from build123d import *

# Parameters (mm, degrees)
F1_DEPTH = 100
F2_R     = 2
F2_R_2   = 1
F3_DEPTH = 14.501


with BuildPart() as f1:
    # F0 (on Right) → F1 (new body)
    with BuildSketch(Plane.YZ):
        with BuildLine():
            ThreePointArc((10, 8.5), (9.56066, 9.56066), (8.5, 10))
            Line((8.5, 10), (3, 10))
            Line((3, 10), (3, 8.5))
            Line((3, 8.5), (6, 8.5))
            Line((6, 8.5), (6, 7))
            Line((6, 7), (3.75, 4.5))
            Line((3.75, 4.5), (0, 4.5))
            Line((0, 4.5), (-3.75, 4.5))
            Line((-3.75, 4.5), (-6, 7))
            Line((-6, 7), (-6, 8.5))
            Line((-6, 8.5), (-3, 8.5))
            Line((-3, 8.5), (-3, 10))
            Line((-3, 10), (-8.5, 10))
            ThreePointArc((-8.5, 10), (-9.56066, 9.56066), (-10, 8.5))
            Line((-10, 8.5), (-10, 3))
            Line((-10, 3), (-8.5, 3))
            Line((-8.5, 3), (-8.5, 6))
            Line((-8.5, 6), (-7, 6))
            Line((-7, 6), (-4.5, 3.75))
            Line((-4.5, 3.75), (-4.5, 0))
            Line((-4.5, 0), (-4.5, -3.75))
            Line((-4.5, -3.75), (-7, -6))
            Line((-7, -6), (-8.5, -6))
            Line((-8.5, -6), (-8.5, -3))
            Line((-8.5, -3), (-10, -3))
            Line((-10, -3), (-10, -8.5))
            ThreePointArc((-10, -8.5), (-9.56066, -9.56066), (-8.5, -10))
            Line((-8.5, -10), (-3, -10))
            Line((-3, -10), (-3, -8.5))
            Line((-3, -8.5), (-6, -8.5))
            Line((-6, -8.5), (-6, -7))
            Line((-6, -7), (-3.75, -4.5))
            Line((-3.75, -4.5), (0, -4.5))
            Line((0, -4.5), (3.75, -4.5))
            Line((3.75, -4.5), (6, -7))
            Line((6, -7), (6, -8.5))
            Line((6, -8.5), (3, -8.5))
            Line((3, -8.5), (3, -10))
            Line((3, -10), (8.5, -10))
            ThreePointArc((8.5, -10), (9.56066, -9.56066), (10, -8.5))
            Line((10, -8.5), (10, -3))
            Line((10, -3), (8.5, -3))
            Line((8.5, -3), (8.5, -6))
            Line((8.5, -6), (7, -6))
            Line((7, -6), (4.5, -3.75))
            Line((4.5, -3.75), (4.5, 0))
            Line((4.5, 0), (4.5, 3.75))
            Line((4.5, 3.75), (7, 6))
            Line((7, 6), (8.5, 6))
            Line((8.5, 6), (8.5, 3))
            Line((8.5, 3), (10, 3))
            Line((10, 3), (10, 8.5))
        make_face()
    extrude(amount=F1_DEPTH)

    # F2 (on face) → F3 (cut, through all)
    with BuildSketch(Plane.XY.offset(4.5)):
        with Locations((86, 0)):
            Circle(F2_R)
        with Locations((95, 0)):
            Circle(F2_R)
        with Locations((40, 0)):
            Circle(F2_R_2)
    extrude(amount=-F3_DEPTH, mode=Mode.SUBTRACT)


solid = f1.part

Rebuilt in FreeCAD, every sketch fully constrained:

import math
import FreeCAD as App
import Part
import Sketcher
Q = App.Units.Quantity

doc = App.newDocument("Part")
body = doc.addObject("PartDesign::Body", "Body")

sketch1 = body.newObject("Sketcher::SketchObject", "Sketch")
sketch1.AttachmentSupport = (doc.getObject("YZ_Plane"), [""])
sketch1.MapMode = "FlatFace"
sketch1.addGeometry(Part.ArcOfCircle(Part.Circle(App.Vector(8.5, 8.5, 0), App.Vector(0, 0, 1), 1.5), math.radians(0), math.radians(90)), False)
sketch1.addGeometry(Part.LineSegment(App.Vector(8.5, 10, 0), App.Vector(3, 10, 0)), False)
sketch1.addGeometry(Part.LineSegment(App.Vector(3, 10, 0), App.Vector(3, 8.5, 0)), False)
sketch1.addGeometry(Part.LineSegment(App.Vector(3, 8.5, 0), App.Vector(6, 8.5, 0)), False)
sketch1.addGeometry(Part.LineSegment(App.Vector(6, 8.5, 0), App.Vector(6, 7, 0)), False)
sketch1.addGeometry(Part.LineSegment(App.Vector(6, 7, 0), App.Vector(3.8, 4.5, 0)), False)
sketch1.addGeometry(Part.LineSegment(App.Vector(3.8, 4.5, 0), App.Vector(-3.8, 4.5, 0)), False)
sketch1.addGeometry(Part.LineSegment(App.Vector(-3.8, 4.5, 0), App.Vector(-6, 7, 0)), False)
sketch1.addGeometry(Part.LineSegment(App.Vector(-6, 7, 0), App.Vector(-6, 8.5, 0)), False)
sketch1.addGeometry(Part.LineSegment(App.Vector(-6, 8.5, 0), App.Vector(-3, 8.5, 0)), False)
sketch1.addGeometry(Part.LineSegment(App.Vector(-3, 8.5, 0), App.Vector(-3, 10, 0)), False)
sketch1.addGeometry(Part.LineSegment(App.Vector(-3, 10, 0), App.Vector(-8.5, 10, 0)), False)
sketch1.addGeometry(Part.ArcOfCircle(Part.Circle(App.Vector(-8.5, 8.5, 0), App.Vector(0, 0, 1), 1.5), math.radians(90), math.radians(180)), False)
sketch1.addGeometry(Part.LineSegment(App.Vector(-10, 8.5, 0), App.Vector(-10, 3, 0)), False)
sketch1.addGeometry(Part.LineSegment(App.Vector(-10, 3, 0), App.Vector(-8.5, 3, 0)), False)
sketch1.addGeometry(Part.LineSegment(App.Vector(-8.5, 3, 0), App.Vector(-8.5, 6, 0)), False)
sketch1.addGeometry(Part.LineSegment(App.Vector(-8.5, 6, 0), App.Vector(-7, 6, 0)), False)
sketch1.addGeometry(Part.LineSegment(App.Vector(-7, 6, 0), App.Vector(-4.5, 3.8, 0)), False)
sketch1.addGeometry(Part.LineSegment(App.Vector(-4.5, 3.8, 0), App.Vector(-4.5, -3.8, 0)), False)
sketch1.addGeometry(Part.LineSegment(App.Vector(-4.5, -3.8, 0), App.Vector(-7, -6, 0)), False)
sketch1.addGeometry(Part.LineSegment(App.Vector(-7, -6, 0), App.Vector(-8.5, -6, 0)), False)
sketch1.addGeometry(Part.LineSegment(App.Vector(-8.5, -6, 0), App.Vector(-8.5, -3, 0)), False)
sketch1.addGeometry(Part.LineSegment(App.Vector(-8.5, -3, 0), App.Vector(-10, -3, 0)), False)
sketch1.addGeometry(Part.LineSegment(App.Vector(-10, -3, 0), App.Vector(-10, -8.5, 0)), False)
sketch1.addGeometry(Part.ArcOfCircle(Part.Circle(App.Vector(-8.5, -8.5, 0), App.Vector(0, 0, 1), 1.5), math.radians(-180), math.radians(-90)), False)
sketch1.addGeometry(Part.LineSegment(App.Vector(-8.5, -10, 0), App.Vector(-3, -10, 0)), False)
sketch1.addGeometry(Part.LineSegment(App.Vector(-3, -10, 0), App.Vector(-3, -8.5, 0)), False)
sketch1.addGeometry(Part.LineSegment(App.Vector(-3, -8.5, 0), App.Vector(-6, -8.5, 0)), False)
sketch1.addGeometry(Part.LineSegment(App.Vector(-6, -8.5, 0), App.Vector(-6, -7, 0)), False)
sketch1.addGeometry(Part.LineSegment(App.Vector(-6, -7, 0), App.Vector(-3.8, -4.5, 0)), False)
sketch1.addGeometry(Part.LineSegment(App.Vector(-3.8, -4.5, 0), App.Vector(3.8, -4.5, 0)), False)
sketch1.addGeometry(Part.LineSegment(App.Vector(3.8, -4.5, 0), App.Vector(6, -7, 0)), False)
sketch1.addGeometry(Part.LineSegment(App.Vector(6, -7, 0), App.Vector(6, -8.5, 0)), False)
sketch1.addGeometry(Part.LineSegment(App.Vector(6, -8.5, 0), App.Vector(3, -8.5, 0)), False)
sketch1.addGeometry(Part.LineSegment(App.Vector(3, -8.5, 0), App.Vector(3, -10, 0)), False)
sketch1.addGeometry(Part.LineSegment(App.Vector(3, -10, 0), App.Vector(8.5, -10, 0)), False)
sketch1.addGeometry(Part.ArcOfCircle(Part.Circle(App.Vector(8.5, -8.5, 0), App.Vector(0, 0, 1), 1.5), math.radians(-90), math.radians(0)), False)
sketch1.addGeometry(Part.LineSegment(App.Vector(10, -8.5, 0), App.Vector(10, -3, 0)), False)
sketch1.addGeometry(Part.LineSegment(App.Vector(10, -3, 0), App.Vector(8.5, -3, 0)), False)
sketch1.addGeometry(Part.LineSegment(App.Vector(8.5, -3, 0), App.Vector(8.5, -6, 0)), False)
sketch1.addGeometry(Part.LineSegment(App.Vector(8.5, -6, 0), App.Vector(7, -6, 0)), False)
sketch1.addGeometry(Part.LineSegment(App.Vector(7, -6, 0), App.Vector(4.5, -3.8, 0)), False)
sketch1.addGeometry(Part.LineSegment(App.Vector(4.5, -3.8, 0), App.Vector(4.5, 3.8, 0)), False)
sketch1.addGeometry(Part.LineSegment(App.Vector(4.5, 3.8, 0), App.Vector(7, 6, 0)), False)
sketch1.addGeometry(Part.LineSegment(App.Vector(7, 6, 0), App.Vector(8.5, 6, 0)), False)
sketch1.addGeometry(Part.LineSegment(App.Vector(8.5, 6, 0), App.Vector(8.5, 3, 0)), False)
sketch1.addGeometry(Part.LineSegment(App.Vector(8.5, 3, 0), App.Vector(10, 3, 0)), False)
sketch1.addGeometry(Part.LineSegment(App.Vector(10, 3, 0), App.Vector(10, 8.5, 0)), False)
sketch1.addConstraint(Sketcher.Constraint("Tangent", 0, 2, 1, 1))
sketch1.addConstraint(Sketcher.Constraint("Coincident", 1, 2, 2, 1))
sketch1.addConstraint(Sketcher.Constraint("Coincident", 2, 2, 3, 1))
sketch1.addConstraint(Sketcher.Constraint("Coincident", 3, 2, 4, 1))
sketch1.addConstraint(Sketcher.Constraint("Coincident", 4, 2, 5, 1))
sketch1.addConstraint(Sketcher.Constraint("Coincident", 5, 2, 6, 1))
sketch1.addConstraint(Sketcher.Constraint("Coincident", 6, 2, 7, 1))
sketch1.addConstraint(Sketcher.Constraint("Coincident", 7, 2, 8, 1))
sketch1.addConstraint(Sketcher.Constraint("Coincident", 8, 2, 9, 1))
sketch1.addConstraint(Sketcher.Constraint("Coincident", 9, 2, 10, 1))
sketch1.addConstraint(Sketcher.Constraint("Coincident", 10, 2, 11, 1))
sketch1.addConstraint(Sketcher.Constraint("Tangent", 11, 2, 12, 1))
sketch1.addConstraint(Sketcher.Constraint("Tangent", 12, 2, 13, 1))
sketch1.addConstraint(Sketcher.Constraint("Coincident", 13, 2, 14, 1))
sketch1.addConstraint(Sketcher.Constraint("Coincident", 14, 2, 15, 1))
sketch1.addConstraint(Sketcher.Constraint("Coincident", 15, 2, 16, 1))
sketch1.addConstraint(Sketcher.Constraint("Coincident", 16, 2, 17, 1))
sketch1.addConstraint(Sketcher.Constraint("Coincident", 17, 2, 18, 1))
sketch1.addConstraint(Sketcher.Constraint("Coincident", 18, 2, 19, 1))
sketch1.addConstraint(Sketcher.Constraint("Coincident", 19, 2, 20, 1))
sketch1.addConstraint(Sketcher.Constraint("Coincident", 20, 2, 21, 1))
sketch1.addConstraint(Sketcher.Constraint("Coincident", 21, 2, 22, 1))
sketch1.addConstraint(Sketcher.Constraint("Coincident", 22, 2, 23, 1))
sketch1.addConstraint(Sketcher.Constraint("Tangent", 23, 2, 24, 1))
sketch1.addConstraint(Sketcher.Constraint("Tangent", 24, 2, 25, 1))
sketch1.addConstraint(Sketcher.Constraint("Coincident", 25, 2, 26, 1))
sketch1.addConstraint(Sketcher.Constraint("Coincident", 26, 2, 27, 1))
sketch1.addConstraint(Sketcher.Constraint("Coincident", 27, 2, 28, 1))
sketch1.addConstraint(Sketcher.Constraint("Coincident", 28, 2, 29, 1))
sketch1.addConstraint(Sketcher.Constraint("Coincident", 29, 2, 30, 1))
sketch1.addConstraint(Sketcher.Constraint("Coincident", 30, 2, 31, 1))
sketch1.addConstraint(Sketcher.Constraint("Coincident", 31, 2, 32, 1))
sketch1.addConstraint(Sketcher.Constraint("Coincident", 32, 2, 33, 1))
sketch1.addConstraint(Sketcher.Constraint("Coincident", 33, 2, 34, 1))
sketch1.addConstraint(Sketcher.Constraint("Coincident", 34, 2, 35, 1))
sketch1.addConstraint(Sketcher.Constraint("Tangent", 35, 2, 36, 1))
sketch1.addConstraint(Sketcher.Constraint("Tangent", 36, 2, 37, 1))
sketch1.addConstraint(Sketcher.Constraint("Coincident", 37, 2, 38, 1))
sketch1.addConstraint(Sketcher.Constraint("Coincident", 38, 2, 39, 1))
sketch1.addConstraint(Sketcher.Constraint("Coincident", 39, 2, 40, 1))
sketch1.addConstraint(Sketcher.Constraint("Coincident", 40, 2, 41, 1))
sketch1.addConstraint(Sketcher.Constraint("Coincident", 41, 2, 42, 1))
sketch1.addConstraint(Sketcher.Constraint("Coincident", 42, 2, 43, 1))
sketch1.addConstraint(Sketcher.Constraint("Coincident", 43, 2, 44, 1))
sketch1.addConstraint(Sketcher.Constraint("Coincident", 44, 2, 45, 1))
sketch1.addConstraint(Sketcher.Constraint("Coincident", 45, 2, 46, 1))
sketch1.addConstraint(Sketcher.Constraint("Coincident", 46, 2, 47, 1))
sketch1.addConstraint(Sketcher.Constraint("Tangent", 47, 2, 0, 1))
sketch1.addConstraint(Sketcher.Constraint("Horizontal", 1))
sketch1.addConstraint(Sketcher.Constraint("Vertical", 2))
sketch1.addConstraint(Sketcher.Constraint("Horizontal", 3))
sketch1.addConstraint(Sketcher.Constraint("Vertical", 4))
sketch1.addConstraint(Sketcher.Constraint("Horizontal", 6))
sketch1.addConstraint(Sketcher.Constraint("Vertical", 8))
sketch1.addConstraint(Sketcher.Constraint("Horizontal", 9))
sketch1.addConstraint(Sketcher.Constraint("Vertical", 10))
sketch1.addConstraint(Sketcher.Constraint("Horizontal", 11))
sketch1.addConstraint(Sketcher.Constraint("Vertical", 13))
sketch1.addConstraint(Sketcher.Constraint("Horizontal", 14))
sketch1.addConstraint(Sketcher.Constraint("Vertical", 15))
sketch1.addConstraint(Sketcher.Constraint("Horizontal", 16))
sketch1.addConstraint(Sketcher.Constraint("Vertical", 18))
sketch1.addConstraint(Sketcher.Constraint("Horizontal", 20))
sketch1.addConstraint(Sketcher.Constraint("Vertical", 21))
sketch1.addConstraint(Sketcher.Constraint("Horizontal", 22))
sketch1.addConstraint(Sketcher.Constraint("Vertical", 23))
sketch1.addConstraint(Sketcher.Constraint("Horizontal", 25))
sketch1.addConstraint(Sketcher.Constraint("Vertical", 26))
sketch1.addConstraint(Sketcher.Constraint("Horizontal", 27))
sketch1.addConstraint(Sketcher.Constraint("Vertical", 28))
sketch1.addConstraint(Sketcher.Constraint("Horizontal", 30))
sketch1.addConstraint(Sketcher.Constraint("Vertical", 32))
sketch1.addConstraint(Sketcher.Constraint("Horizontal", 33))
sketch1.addConstraint(Sketcher.Constraint("Vertical", 34))
sketch1.addConstraint(Sketcher.Constraint("Horizontal", 35))
sketch1.addConstraint(Sketcher.Constraint("Vertical", 37))
sketch1.addConstraint(Sketcher.Constraint("Horizontal", 38))
sketch1.addConstraint(Sketcher.Constraint("Vertical", 39))
sketch1.addConstraint(Sketcher.Constraint("Horizontal", 40))
sketch1.addConstraint(Sketcher.Constraint("Vertical", 42))
sketch1.addConstraint(Sketcher.Constraint("Horizontal", 44))
sketch1.addConstraint(Sketcher.Constraint("Vertical", 45))
sketch1.addConstraint(Sketcher.Constraint("Horizontal", 46))
sketch1.addConstraint(Sketcher.Constraint("Vertical", 47))
sketch1.addConstraint(Sketcher.Constraint("Equal", 0, 12))
sketch1.addConstraint(Sketcher.Constraint("Equal", 12, 24))
sketch1.addConstraint(Sketcher.Constraint("Equal", 24, 36))
sketch1.addConstraint(Sketcher.Constraint("Symmetric", 0, 3, 24, 3, -1, 1))
sketch1.addConstraint(Sketcher.Constraint("Symmetric", 12, 3, 36, 3, -1, 1))
sketch1.addConstraint(Sketcher.Constraint("Symmetric", 2, 2, 26, 2, -1, 1))
sketch1.addConstraint(Sketcher.Constraint("Symmetric", 4, 2, 28, 2, -1, 1))
sketch1.addConstraint(Sketcher.Constraint("Symmetric", 5, 2, 29, 2, -1, 1))
sketch1.addConstraint(Sketcher.Constraint("Symmetric", 7, 2, 31, 2, -1, 1))
sketch1.addConstraint(Sketcher.Constraint("Symmetric", 9, 2, 33, 2, -1, 1))
sketch1.addConstraint(Sketcher.Constraint("Symmetric", 14, 2, 38, 2, -1, 1))
sketch1.addConstraint(Sketcher.Constraint("Symmetric", 16, 2, 40, 2, -1, 1))
sketch1.addConstraint(Sketcher.Constraint("Symmetric", 17, 2, 41, 2, -1, 1))
sketch1.addConstraint(Sketcher.Constraint("Symmetric", 19, 2, 43, 2, -1, 1))
sketch1.addConstraint(Sketcher.Constraint("Symmetric", 21, 2, 45, 2, -1, 1))
sketch1.addConstraint(Sketcher.Constraint("Symmetric", 0, 3, 12, 3, -2))
sketch1.addConstraint(Sketcher.Constraint("Symmetric", 4, 2, 7, 2, -2))
sketch1.addConstraint(Sketcher.Constraint("Symmetric", 2, 2, 9, 2, -2))
sketch1.addConstraint(Sketcher.Constraint("Symmetric", 21, 2, 38, 2, -2))
sketch1.addConstraint(Sketcher.Constraint("Symmetric", 19, 2, 40, 2, -2))
sketch1.addConstraint(Sketcher.Constraint("Perpendicular", 5, 17))
sketch1.addConstraint(Sketcher.Constraint("Perpendicular", 7, 19))
sketch1.addConstraint(Sketcher.Constraint("Perpendicular", 19, 31))
sketch1.addConstraint(Sketcher.Constraint("Perpendicular", 31, 43))
sketch1.addConstraint(Sketcher.Constraint("Horizontal", 12, 3, 2, 2))
sketch1.addConstraint(Sketcher.Constraint("Horizontal", 18, 2, 41, 2))
sketch1.addConstraint(Sketcher.Constraint("Vertical", 11, 2, 14, 2))
sketch1.addConstraint(Sketcher.Constraint("Equal", 14, 16))
sketch1.addConstraint(Sketcher.Constraint("Equal", 2, 4))
sketch1.addConstraint(Sketcher.Constraint("Equal", 35, 13))
sketch1.addConstraint(Sketcher.Constraint("Equal", 33, 15))
sketch1.addConstraint(Sketcher.Constraint("Equal", 30, 18))
sketch1.addConstraint(Sketcher.Constraint("Equal", 7, 17))
sketch1.addConstraint(Sketcher.Constraint("Radius", 0, Q("1.500001 mm")))
sketch1.addConstraint(Sketcher.Constraint("DistanceX", 3, 1, 3, 2, Q("3 mm")))
sketch1.addConstraint(Sketcher.Constraint("DistanceX", 1, 2, 1, 1, Q("5.5 mm")))
sketch1.addConstraint(Sketcher.Constraint("DistanceX", 6, 2, 6, 1, Q("7.5 mm")))
sketch1.addConstraint(Sketcher.Constraint("DistanceY", -1, 1, 0, 2, Q("10 mm")))
sketch1.addConstraint(Sketcher.Constraint("DistanceY", 5, 2, 2, 2, Q("4 mm")))
pad1 = body.newObject("PartDesign::Pad", "Pad")
pad1.Profile = sketch1
pad1.Length = 100

sketch2 = body.newObject("Sketcher::SketchObject", "Sketch001")
sketch2.AttachmentSupport = (doc.getObject("XY_Plane"), [""])
sketch2.MapMode = "FlatFace"
sketch2.AttachmentOffset = App.Placement(App.Vector(0, 0, 4.5), App.Rotation())
sketch2.addGeometry(Part.Circle(App.Vector(86, 0, 0), App.Vector(0, 0, 1), 2), False)
sketch2.addGeometry(Part.Circle(App.Vector(95, 0, 0), App.Vector(0, 0, 1), 2), False)
sketch2.addGeometry(Part.Circle(App.Vector(40, 0, 0), App.Vector(0, 0, 1), 1), False)
sketch2.addConstraint(Sketcher.Constraint("Equal", 0, 1))
sketch2.addConstraint(Sketcher.Constraint("PointOnObject", 0, 3, -1))
sketch2.addConstraint(Sketcher.Constraint("PointOnObject", 1, 3, -1))
sketch2.addConstraint(Sketcher.Constraint("PointOnObject", 2, 3, -1))
sketch2.addConstraint(Sketcher.Constraint("Diameter", 0, Q("4 mm")))
sketch2.addConstraint(Sketcher.Constraint("Diameter", 2, Q("2 mm")))
sketch2.addConstraint(Sketcher.Constraint("DistanceX", -1, 1, 0, 3, Q("86 mm")))
sketch2.addConstraint(Sketcher.Constraint("DistanceX", -1, 1, 1, 3, Q("95 mm")))
sketch2.addConstraint(Sketcher.Constraint("DistanceX", -1, 1, 2, 3, Q("40 mm")))
pocket1 = body.newObject("PartDesign::Pocket", "Pocket")
pocket1.Profile = sketch2
pocket1.Type = "ThroughAll"

doc.recompute()
